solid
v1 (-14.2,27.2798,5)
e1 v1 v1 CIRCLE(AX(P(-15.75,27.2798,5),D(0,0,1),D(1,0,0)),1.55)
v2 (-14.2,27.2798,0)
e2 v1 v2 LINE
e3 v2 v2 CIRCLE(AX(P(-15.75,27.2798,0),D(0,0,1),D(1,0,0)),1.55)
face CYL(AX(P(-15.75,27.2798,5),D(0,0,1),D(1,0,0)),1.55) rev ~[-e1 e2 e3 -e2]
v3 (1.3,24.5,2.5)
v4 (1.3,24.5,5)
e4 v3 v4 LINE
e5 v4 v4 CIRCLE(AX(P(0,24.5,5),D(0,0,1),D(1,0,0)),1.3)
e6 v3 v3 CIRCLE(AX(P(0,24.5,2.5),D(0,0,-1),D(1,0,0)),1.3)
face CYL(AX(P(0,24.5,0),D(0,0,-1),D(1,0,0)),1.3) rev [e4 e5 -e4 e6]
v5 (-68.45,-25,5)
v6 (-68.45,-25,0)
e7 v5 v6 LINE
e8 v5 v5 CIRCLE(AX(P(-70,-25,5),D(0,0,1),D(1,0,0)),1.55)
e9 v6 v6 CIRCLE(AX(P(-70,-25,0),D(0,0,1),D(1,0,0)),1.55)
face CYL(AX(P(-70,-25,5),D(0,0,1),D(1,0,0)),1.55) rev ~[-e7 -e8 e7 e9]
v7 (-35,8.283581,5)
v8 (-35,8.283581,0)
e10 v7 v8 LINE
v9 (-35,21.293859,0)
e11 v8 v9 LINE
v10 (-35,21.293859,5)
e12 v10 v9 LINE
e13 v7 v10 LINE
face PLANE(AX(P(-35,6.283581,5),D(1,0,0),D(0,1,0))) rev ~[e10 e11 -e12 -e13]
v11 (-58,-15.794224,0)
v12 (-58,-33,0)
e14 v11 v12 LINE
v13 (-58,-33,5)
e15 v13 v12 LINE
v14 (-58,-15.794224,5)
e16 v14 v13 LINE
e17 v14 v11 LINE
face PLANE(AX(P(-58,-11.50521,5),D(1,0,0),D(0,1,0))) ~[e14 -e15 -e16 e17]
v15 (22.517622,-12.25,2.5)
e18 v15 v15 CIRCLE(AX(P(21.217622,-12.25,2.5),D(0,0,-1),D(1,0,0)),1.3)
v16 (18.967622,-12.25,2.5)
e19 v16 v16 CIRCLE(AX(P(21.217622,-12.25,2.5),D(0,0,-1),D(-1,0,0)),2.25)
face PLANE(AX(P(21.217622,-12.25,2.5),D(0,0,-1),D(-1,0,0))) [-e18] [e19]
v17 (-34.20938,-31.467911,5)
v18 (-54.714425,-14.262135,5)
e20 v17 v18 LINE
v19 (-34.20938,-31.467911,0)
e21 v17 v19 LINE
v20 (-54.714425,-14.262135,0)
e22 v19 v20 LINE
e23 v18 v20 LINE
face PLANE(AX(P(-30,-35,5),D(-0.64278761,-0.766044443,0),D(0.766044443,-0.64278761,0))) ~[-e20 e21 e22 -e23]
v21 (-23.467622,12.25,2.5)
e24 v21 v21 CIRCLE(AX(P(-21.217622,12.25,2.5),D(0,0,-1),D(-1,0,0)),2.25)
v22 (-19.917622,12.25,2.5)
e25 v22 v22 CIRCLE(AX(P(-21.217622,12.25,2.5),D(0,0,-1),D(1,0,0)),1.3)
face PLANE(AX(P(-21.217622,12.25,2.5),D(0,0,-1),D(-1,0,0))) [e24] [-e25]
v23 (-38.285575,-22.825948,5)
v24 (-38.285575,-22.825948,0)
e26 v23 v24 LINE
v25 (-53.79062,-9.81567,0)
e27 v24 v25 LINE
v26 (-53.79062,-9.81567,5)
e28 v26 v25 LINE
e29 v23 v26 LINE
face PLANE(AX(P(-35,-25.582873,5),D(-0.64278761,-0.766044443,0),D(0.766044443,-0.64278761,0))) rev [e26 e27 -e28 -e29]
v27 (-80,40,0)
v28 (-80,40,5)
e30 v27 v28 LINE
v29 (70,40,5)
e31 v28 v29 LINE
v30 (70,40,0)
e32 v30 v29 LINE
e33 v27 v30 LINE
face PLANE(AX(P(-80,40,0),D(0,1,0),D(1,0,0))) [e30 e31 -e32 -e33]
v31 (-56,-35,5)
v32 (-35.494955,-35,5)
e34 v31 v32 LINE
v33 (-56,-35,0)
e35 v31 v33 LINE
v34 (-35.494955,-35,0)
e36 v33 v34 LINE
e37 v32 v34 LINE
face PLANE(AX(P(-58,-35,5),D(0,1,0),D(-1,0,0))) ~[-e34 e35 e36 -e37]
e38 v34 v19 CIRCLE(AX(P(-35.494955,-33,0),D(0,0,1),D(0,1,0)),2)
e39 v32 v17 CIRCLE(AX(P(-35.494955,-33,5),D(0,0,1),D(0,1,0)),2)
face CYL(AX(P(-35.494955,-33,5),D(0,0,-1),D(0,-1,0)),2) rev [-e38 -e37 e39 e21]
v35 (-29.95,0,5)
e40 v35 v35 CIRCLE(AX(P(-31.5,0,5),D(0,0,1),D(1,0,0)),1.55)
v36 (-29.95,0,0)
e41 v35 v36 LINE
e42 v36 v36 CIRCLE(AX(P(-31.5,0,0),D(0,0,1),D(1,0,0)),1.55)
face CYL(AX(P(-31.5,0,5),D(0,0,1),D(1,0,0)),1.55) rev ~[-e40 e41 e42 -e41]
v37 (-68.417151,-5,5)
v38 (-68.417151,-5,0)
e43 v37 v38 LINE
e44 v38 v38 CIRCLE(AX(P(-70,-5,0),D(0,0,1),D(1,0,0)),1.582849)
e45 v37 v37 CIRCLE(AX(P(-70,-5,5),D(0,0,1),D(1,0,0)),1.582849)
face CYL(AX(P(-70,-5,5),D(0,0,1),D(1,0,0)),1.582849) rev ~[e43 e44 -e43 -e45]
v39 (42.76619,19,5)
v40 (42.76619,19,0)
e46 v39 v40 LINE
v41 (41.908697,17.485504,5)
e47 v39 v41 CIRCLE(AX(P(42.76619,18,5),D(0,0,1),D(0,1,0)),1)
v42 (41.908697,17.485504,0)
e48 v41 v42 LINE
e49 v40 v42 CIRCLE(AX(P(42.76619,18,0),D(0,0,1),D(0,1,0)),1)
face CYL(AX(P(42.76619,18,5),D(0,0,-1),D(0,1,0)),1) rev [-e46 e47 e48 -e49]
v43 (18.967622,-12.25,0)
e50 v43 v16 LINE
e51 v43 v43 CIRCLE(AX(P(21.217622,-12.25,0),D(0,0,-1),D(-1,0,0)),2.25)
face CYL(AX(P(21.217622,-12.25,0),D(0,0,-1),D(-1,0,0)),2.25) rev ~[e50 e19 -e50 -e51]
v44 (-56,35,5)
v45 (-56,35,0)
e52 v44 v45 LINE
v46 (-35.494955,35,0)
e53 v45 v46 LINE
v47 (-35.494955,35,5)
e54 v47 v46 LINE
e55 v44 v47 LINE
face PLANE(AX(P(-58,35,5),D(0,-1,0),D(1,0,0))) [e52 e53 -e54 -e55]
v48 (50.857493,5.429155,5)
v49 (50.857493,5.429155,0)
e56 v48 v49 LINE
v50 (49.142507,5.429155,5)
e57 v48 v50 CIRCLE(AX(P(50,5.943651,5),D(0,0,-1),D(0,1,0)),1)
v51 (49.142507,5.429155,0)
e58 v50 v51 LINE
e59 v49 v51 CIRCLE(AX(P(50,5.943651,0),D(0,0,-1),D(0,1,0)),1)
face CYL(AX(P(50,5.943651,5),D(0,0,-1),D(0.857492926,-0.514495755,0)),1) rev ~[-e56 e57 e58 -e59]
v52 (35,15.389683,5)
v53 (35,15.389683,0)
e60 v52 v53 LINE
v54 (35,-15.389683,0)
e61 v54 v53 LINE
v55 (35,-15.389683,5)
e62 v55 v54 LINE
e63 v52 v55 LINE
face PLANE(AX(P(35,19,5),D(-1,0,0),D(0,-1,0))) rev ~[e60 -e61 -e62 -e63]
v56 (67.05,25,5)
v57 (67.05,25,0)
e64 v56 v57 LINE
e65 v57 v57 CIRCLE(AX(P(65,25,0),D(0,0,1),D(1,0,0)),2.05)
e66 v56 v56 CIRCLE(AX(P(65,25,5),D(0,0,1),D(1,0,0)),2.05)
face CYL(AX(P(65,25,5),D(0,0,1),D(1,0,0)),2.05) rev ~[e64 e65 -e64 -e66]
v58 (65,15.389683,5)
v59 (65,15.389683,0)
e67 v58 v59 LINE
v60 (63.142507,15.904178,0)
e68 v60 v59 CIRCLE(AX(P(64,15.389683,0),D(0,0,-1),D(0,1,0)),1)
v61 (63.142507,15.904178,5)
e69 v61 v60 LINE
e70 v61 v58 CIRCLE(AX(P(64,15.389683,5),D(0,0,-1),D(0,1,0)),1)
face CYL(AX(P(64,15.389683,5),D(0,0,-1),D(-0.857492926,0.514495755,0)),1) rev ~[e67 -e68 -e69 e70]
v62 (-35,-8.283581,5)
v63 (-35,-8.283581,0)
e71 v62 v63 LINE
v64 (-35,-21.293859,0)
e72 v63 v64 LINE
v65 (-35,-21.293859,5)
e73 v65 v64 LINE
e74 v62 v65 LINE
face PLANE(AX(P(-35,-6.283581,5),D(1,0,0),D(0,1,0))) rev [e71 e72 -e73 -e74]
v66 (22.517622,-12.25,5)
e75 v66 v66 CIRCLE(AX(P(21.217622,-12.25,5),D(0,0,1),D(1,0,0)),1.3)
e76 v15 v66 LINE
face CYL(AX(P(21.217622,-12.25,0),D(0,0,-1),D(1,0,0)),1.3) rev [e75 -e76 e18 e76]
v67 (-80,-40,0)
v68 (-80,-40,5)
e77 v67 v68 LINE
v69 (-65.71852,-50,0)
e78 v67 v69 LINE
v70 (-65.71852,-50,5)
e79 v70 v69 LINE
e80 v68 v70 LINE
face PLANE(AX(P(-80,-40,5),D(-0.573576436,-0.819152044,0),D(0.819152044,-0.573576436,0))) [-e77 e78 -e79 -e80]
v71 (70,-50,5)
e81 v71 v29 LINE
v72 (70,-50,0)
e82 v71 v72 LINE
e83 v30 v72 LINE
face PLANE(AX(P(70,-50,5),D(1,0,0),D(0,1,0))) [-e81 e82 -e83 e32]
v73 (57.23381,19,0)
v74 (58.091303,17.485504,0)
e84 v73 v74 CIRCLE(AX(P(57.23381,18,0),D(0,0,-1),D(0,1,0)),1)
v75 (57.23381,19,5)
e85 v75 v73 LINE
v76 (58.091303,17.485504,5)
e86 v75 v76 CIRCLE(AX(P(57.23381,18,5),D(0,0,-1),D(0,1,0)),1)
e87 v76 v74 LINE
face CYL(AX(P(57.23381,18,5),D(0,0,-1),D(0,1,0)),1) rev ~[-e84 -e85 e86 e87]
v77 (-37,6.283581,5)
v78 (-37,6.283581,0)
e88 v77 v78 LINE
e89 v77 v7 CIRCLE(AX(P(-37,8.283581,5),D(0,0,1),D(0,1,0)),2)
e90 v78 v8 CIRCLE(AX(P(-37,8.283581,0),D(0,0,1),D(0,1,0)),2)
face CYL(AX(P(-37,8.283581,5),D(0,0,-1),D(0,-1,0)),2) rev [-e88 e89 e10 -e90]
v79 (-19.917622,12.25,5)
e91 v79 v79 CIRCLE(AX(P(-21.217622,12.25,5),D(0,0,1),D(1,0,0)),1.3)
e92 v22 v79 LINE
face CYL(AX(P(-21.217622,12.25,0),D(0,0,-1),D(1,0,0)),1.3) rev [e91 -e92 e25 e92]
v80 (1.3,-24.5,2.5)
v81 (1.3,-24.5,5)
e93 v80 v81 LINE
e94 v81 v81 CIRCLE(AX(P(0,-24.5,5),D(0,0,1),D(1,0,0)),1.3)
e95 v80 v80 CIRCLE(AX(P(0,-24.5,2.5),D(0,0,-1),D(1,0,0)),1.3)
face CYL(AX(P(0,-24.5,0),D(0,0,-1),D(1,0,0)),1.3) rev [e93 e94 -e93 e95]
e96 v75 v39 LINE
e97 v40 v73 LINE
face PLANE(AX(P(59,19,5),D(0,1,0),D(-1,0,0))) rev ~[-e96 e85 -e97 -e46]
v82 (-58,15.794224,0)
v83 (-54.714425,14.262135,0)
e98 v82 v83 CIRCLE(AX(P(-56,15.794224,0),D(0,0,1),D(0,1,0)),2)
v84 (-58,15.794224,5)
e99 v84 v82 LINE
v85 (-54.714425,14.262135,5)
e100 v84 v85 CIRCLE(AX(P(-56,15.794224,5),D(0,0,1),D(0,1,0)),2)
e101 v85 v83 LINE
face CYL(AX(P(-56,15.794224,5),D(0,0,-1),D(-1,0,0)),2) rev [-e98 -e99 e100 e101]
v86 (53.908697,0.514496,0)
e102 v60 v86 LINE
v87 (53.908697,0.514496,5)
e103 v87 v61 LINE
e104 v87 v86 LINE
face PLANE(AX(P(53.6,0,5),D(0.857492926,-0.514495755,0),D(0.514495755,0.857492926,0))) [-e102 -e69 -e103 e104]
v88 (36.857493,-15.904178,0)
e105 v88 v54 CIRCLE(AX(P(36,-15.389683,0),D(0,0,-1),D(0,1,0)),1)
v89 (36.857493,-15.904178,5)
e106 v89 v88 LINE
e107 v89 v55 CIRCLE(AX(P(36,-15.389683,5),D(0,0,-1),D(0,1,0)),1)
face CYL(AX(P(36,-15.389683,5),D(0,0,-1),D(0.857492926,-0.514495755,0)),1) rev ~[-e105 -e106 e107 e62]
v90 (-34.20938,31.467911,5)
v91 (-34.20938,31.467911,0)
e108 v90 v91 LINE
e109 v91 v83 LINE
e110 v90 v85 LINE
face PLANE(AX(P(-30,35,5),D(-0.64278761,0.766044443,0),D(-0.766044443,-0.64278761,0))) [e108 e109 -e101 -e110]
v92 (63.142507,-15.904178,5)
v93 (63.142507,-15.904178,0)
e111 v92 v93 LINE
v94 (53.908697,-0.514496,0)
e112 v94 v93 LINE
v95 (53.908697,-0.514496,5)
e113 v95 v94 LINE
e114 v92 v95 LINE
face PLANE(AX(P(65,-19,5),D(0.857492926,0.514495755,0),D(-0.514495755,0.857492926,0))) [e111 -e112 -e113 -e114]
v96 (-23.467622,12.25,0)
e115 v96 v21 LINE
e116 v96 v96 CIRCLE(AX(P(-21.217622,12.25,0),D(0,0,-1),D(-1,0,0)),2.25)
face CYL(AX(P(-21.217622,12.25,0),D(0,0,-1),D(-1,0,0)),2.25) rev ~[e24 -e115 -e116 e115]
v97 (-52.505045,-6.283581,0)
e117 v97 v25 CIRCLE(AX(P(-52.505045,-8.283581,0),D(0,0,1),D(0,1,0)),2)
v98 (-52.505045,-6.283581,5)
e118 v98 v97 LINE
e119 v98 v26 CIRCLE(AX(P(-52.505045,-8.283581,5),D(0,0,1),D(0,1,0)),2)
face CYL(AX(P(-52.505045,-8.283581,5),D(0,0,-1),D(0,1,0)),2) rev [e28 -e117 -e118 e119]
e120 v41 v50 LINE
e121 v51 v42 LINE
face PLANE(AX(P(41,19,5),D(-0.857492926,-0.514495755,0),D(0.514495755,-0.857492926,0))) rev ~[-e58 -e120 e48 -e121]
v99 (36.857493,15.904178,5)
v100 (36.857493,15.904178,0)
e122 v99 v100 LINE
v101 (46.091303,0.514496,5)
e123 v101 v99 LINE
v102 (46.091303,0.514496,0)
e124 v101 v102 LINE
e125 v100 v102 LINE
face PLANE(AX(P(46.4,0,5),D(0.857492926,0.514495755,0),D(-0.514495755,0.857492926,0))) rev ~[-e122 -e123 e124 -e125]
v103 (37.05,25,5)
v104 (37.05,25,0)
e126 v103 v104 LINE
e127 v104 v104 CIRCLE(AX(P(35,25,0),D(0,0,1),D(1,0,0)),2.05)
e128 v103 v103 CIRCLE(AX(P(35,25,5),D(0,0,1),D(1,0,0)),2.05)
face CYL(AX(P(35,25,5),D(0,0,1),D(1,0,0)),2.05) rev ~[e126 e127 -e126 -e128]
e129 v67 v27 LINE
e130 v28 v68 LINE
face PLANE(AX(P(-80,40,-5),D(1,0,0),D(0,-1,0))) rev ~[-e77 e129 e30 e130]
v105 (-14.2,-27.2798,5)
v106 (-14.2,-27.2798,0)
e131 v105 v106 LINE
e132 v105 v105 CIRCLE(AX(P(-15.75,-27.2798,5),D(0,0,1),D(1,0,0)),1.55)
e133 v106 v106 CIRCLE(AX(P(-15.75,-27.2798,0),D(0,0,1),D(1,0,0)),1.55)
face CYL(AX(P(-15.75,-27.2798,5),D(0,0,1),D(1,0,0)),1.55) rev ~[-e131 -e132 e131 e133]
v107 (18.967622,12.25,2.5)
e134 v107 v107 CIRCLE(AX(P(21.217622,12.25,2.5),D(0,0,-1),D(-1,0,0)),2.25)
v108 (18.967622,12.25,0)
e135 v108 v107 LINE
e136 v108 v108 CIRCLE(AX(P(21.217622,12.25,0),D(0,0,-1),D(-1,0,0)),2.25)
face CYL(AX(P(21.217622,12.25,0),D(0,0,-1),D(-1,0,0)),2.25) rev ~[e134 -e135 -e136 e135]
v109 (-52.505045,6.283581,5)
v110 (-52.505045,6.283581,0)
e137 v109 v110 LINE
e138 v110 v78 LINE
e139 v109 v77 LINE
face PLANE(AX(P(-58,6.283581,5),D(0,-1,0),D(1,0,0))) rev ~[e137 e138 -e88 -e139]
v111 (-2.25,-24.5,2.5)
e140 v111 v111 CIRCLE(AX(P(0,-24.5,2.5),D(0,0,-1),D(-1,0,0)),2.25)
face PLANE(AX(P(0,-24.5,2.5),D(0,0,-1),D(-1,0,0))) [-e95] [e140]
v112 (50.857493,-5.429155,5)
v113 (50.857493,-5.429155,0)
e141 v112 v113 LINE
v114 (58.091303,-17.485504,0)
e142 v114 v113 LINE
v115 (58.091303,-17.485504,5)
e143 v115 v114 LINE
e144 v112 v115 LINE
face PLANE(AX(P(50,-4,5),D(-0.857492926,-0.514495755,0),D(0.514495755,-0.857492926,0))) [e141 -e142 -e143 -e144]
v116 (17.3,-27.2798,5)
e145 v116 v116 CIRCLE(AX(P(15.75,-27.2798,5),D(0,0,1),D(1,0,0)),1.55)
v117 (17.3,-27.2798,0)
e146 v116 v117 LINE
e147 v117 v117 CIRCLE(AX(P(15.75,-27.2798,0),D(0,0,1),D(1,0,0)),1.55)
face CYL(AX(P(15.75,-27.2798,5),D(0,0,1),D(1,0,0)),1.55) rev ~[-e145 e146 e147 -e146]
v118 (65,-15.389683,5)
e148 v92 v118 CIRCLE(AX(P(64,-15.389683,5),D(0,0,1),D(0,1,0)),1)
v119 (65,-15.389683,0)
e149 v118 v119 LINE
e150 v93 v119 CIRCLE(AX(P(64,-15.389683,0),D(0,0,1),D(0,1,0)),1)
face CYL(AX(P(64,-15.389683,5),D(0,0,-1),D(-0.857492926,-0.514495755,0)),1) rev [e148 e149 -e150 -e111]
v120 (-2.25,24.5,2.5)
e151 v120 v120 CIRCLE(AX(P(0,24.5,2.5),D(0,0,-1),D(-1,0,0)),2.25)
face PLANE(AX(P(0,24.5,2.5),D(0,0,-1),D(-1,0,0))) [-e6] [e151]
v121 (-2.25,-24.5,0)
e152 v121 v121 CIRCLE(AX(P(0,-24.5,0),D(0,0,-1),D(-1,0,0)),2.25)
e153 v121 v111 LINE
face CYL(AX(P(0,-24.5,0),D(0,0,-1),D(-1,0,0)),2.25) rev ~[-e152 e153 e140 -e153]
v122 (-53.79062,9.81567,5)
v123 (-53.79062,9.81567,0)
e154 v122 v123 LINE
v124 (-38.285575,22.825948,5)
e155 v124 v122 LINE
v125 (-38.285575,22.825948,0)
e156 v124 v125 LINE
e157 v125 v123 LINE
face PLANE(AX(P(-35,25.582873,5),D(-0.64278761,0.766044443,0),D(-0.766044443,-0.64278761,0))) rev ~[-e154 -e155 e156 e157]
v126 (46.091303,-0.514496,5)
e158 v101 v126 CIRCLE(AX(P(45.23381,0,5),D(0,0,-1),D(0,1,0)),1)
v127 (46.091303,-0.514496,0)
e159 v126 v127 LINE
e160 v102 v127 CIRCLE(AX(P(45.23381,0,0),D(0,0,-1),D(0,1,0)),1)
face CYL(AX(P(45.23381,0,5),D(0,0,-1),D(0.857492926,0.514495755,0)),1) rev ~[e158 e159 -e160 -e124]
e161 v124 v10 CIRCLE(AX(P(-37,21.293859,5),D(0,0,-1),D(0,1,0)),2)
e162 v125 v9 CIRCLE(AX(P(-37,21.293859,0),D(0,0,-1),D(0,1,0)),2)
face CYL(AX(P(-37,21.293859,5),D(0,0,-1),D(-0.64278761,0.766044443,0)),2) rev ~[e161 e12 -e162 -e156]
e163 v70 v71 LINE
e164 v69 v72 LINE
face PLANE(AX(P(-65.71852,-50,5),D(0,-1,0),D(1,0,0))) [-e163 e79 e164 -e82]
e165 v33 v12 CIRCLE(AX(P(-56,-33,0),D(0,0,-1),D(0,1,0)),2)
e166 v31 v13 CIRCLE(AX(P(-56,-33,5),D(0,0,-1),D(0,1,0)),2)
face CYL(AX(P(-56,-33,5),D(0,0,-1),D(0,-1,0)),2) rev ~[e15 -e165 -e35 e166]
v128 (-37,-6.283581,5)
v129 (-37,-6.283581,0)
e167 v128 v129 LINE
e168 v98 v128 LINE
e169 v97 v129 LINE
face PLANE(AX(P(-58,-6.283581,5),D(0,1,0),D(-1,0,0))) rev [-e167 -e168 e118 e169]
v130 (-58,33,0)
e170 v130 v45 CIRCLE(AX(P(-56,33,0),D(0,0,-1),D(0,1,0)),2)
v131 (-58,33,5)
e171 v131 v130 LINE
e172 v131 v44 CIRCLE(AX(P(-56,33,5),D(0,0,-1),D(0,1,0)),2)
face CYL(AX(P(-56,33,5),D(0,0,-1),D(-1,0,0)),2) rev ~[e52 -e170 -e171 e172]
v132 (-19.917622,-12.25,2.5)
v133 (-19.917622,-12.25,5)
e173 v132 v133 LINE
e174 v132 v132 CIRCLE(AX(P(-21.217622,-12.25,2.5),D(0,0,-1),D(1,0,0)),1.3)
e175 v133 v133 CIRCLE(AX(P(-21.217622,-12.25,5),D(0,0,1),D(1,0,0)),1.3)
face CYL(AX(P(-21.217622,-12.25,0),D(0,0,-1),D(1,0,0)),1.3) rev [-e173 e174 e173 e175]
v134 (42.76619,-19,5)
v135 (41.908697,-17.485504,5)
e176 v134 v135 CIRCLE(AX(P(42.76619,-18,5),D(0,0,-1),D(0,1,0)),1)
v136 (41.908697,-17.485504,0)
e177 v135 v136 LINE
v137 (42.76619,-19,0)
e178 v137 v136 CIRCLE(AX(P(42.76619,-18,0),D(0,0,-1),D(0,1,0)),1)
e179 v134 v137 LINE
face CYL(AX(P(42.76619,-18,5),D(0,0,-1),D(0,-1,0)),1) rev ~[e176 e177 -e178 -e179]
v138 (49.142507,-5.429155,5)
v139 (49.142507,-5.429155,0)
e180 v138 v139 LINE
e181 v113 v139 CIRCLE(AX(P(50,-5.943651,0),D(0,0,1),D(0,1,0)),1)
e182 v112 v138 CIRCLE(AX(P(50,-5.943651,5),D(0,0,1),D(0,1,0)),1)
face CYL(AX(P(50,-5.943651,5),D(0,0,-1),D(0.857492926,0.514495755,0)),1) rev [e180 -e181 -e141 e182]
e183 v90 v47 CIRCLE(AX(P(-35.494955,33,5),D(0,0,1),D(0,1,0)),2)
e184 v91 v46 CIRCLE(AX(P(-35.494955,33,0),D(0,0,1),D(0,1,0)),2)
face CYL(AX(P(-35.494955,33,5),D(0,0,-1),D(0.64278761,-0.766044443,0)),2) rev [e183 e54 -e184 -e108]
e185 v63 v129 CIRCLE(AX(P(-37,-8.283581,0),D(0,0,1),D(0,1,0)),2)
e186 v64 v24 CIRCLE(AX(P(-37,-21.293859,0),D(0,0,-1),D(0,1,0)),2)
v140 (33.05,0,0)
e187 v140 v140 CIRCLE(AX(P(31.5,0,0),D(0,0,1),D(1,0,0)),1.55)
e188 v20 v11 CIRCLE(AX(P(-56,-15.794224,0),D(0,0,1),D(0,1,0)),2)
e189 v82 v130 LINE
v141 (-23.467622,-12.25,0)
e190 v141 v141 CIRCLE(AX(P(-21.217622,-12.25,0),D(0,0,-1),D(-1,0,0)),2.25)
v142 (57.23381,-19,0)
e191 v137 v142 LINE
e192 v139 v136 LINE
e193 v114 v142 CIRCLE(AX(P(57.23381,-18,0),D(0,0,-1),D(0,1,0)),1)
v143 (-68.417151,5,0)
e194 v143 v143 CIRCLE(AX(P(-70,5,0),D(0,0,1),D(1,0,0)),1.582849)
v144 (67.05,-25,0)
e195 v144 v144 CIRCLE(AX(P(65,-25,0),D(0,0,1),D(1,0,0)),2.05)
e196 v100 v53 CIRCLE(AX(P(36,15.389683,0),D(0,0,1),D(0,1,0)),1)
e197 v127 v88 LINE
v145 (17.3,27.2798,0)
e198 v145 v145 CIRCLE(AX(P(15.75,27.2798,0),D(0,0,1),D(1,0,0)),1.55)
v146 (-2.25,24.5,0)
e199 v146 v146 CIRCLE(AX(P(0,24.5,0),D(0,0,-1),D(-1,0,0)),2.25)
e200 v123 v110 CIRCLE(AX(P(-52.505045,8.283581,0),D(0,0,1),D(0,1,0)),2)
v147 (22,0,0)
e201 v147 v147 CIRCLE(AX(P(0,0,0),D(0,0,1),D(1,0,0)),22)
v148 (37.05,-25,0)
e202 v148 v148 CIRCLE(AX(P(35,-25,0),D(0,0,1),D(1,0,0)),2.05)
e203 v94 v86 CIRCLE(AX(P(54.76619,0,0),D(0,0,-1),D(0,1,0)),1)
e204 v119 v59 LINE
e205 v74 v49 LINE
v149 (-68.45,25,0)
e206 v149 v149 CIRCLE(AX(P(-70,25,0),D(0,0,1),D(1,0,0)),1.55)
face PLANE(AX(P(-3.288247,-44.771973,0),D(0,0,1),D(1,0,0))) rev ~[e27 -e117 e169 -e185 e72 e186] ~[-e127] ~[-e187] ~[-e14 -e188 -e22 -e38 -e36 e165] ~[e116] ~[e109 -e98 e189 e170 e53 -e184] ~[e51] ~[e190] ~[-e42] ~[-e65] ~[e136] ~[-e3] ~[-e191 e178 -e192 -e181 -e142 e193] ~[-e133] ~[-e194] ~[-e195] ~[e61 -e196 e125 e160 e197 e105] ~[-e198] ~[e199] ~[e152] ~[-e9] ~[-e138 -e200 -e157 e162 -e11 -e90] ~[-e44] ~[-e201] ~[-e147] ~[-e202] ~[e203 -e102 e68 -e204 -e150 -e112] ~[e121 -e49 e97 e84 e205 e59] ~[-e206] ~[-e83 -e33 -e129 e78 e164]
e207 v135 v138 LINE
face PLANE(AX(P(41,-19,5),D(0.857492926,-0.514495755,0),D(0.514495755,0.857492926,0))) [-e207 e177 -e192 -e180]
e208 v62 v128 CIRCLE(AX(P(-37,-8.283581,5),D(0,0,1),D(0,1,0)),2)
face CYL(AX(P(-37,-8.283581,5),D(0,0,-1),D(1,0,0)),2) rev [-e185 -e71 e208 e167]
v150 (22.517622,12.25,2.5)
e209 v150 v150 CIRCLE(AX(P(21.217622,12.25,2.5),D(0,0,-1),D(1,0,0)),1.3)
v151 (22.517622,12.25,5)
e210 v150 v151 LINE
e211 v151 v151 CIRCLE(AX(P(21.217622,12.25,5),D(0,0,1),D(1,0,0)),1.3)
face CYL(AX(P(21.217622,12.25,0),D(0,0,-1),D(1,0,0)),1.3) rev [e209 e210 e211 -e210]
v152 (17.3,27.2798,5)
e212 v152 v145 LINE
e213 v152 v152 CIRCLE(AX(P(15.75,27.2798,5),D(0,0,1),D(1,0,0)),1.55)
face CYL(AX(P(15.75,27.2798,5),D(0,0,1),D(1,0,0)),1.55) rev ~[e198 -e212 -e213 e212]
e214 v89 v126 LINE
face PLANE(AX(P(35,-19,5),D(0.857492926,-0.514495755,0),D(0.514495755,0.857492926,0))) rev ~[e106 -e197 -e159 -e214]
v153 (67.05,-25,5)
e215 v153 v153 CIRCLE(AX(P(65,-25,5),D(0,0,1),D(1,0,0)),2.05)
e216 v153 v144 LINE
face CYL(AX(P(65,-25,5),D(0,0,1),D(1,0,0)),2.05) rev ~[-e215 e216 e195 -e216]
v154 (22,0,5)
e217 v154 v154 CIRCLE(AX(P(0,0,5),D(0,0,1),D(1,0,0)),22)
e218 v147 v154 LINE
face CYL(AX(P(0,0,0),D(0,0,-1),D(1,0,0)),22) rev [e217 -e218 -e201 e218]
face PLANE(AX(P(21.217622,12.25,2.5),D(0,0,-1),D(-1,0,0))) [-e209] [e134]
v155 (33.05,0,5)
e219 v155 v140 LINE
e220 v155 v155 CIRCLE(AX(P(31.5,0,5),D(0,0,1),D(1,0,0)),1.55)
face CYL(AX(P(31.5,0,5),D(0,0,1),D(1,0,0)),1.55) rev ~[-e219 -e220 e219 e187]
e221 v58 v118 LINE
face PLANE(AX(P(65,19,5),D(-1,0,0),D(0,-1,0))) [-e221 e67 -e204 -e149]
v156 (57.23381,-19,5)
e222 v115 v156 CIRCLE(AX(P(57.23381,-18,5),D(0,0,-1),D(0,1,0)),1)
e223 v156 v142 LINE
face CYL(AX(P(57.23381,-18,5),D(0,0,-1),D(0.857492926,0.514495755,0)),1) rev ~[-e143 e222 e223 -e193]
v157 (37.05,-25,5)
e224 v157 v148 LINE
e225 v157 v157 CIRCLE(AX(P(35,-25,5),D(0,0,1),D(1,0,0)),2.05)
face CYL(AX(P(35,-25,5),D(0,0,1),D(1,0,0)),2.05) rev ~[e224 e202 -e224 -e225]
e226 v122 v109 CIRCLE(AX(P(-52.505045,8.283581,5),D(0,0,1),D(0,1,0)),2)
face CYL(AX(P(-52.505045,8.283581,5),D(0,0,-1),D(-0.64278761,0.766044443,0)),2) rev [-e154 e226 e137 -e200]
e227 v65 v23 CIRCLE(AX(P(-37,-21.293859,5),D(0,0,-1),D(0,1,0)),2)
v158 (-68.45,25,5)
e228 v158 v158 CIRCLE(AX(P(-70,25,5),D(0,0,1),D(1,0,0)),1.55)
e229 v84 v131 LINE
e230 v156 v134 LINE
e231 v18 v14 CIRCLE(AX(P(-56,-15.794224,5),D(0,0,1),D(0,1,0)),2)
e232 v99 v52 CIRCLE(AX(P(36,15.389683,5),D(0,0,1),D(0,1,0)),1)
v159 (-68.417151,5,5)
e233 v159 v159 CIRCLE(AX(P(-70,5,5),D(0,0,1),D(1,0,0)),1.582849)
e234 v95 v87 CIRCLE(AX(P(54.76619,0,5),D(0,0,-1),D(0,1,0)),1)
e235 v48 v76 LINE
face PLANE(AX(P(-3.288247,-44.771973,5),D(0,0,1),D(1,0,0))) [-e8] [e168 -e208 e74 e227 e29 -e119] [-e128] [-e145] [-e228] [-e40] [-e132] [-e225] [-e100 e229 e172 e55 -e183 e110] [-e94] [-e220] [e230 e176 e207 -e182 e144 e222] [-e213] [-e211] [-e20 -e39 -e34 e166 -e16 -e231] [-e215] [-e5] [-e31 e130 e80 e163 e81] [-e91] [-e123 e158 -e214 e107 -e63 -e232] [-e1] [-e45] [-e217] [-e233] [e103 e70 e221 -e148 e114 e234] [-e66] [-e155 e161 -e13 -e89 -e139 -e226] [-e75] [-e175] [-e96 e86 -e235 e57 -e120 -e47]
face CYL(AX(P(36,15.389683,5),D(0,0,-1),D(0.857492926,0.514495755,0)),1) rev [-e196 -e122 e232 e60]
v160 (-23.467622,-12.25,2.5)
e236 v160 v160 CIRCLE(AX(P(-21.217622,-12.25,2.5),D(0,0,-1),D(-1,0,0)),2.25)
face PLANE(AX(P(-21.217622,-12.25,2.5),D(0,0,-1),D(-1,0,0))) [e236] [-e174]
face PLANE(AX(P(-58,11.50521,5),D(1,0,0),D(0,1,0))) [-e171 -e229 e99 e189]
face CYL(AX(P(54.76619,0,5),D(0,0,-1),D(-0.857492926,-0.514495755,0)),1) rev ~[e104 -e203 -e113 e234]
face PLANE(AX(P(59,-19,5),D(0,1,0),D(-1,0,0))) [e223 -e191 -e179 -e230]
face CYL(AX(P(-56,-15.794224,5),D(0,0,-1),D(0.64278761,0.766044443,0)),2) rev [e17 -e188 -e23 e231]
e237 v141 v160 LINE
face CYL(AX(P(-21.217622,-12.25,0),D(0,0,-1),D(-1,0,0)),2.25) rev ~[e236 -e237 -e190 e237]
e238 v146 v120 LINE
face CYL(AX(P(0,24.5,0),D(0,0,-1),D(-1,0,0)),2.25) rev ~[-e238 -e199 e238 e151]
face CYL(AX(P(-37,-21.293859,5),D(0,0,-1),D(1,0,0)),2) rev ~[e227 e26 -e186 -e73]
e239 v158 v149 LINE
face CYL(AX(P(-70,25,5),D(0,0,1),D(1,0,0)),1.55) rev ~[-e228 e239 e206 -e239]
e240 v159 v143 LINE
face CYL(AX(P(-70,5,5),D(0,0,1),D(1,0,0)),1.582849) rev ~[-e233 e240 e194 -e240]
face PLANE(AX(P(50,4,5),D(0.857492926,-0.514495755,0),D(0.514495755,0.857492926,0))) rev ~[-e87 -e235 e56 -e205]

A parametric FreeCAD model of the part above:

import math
import FreeCAD as App
import Part
import Sketcher
from FreeCAD import Vector
Q = App.Units.Quantity


def edges_at(feature, points):
    """Names of the edges that pass closest to the given points."""
    edges = feature.Shape.Edges
    near = lambda p: min(range(len(edges)), key=lambda i: edges[i].distToShape(Part.Vertex(*p))[0])
    return sorted({f"Edge{near(p) + 1}" for p in points})

doc = App.newDocument("Part")
params = doc.addObject("Spreadsheet::Sheet", "Params")
for row, (alias, value) in enumerate([
    ("sketch1_diameter", "44 mm"),
    ("sketch1_diameter2", "2.6 mm"),
    ("sketch1_width", "150 mm"),
    ("sketch1_height", "80 mm"),
    ("pad1_length", "5 mm"),
    ("sketch2_diameter", "3.1 mm"),
    ("pocket1_length", "12.5 mm"),
    ("sketch3_width", "28 mm"),
    ("sketch3_width2", "23 mm"),
    ("pocket2_length", "8 mm"),
    ("fillet_radius", "2 mm"),
    ("fillet2_radius", "2 mm"),
    ("sketch4_height", "80 mm"),
    ("pad2_length", "5 mm"),
    ("fillet3_radius", "5 mm"),
    ("sketch5_diameter", "3.1 mm"),
    ("pocket3_length", "25 mm"),
    ("sketch6_diameter", "4.1 mm"),
    ("pocket4_length", "10 mm"),
    ("sketch7_width", "18 mm"),
    ("sketch7_height", "38 mm"),
    ("pocket5_length", "10 mm"),
    ("fillet4_radius", "1 mm"),
    ("sketch8_width", "150 mm"),
    ("sketch8_height", "10 mm"),
    ("pad3_length", "5 mm"),
    ("sketch9_diameter", "4.5 mm"),
    ("pocket6_length", "2.5 mm"),
    ("sketch10_radius", "5 mm"),
    ("sketch10_height", "80 mm"),
    ("pocket7_length", "10 mm"),
], start=1):
    params.set(f"A{row}", alias)
    params.set(f"B{row}", "=" + value)
    params.setAlias(f"B{row}", alias)

body = doc.addObject("PartDesign::Body", "Body")

sketch1 = body.newObject("Sketcher::SketchObject", "Sketch")
sketch1.AttachmentSupport = (doc.getObject("XY_Plane"), [""])
sketch1.MapMode = "FlatFace"
sketch1.addGeometry([
    Part.LineSegment(Vector(-80, 40, 0), Vector(-80, -40, 0)),
    Part.LineSegment(Vector(-80, -40, 0), Vector(70, -40, 0)),
    Part.LineSegment(Vector(70, -40, 0), Vector(70, 40, 0)),
    Part.LineSegment(Vector(70, 40, 0), Vector(-80, 40, 0)),
    Part.Circle(Vector(-21.217622, -12.25, 0), Vector(0, 0, 1), 1.3),
    Part.Circle(Vector(0, -24.5, 0), Vector(0, 0, 1), 1.3),
    Part.Circle(Vector(21.217622, -12.25, 0), Vector(0, 0, 1), 1.3),
    Part.Circle(Vector(-21.217622, 12.25, 0), Vector(0, 0, 1), 1.3),
    Part.Circle(Vector(0, 0, 0), Vector(0, 0, 1), 22),
    Part.Circle(Vector(21.217622, 12.25, 0), Vector(0, 0, 1), 1.3),
    Part.Circle(Vector(0, 24.5, 0), Vector(0, 0, 1), 1.3),
], False)
sketch1.addConstraint([
    Sketcher.Constraint("Coincident", 0, 2, 1, 1),
    Sketcher.Constraint("Coincident", 1, 2, 2, 1),
    Sketcher.Constraint("Coincident", 2, 2, 3, 1),
    Sketcher.Constraint("Coincident", 3, 2, 0, 1),
    Sketcher.Constraint("Vertical", 0),
    Sketcher.Constraint("Horizontal", 1),
    Sketcher.Constraint("Vertical", 2),
    Sketcher.Constraint("Horizontal", 3),
    Sketcher.Constraint("Coincident", 8, 3, -1, 1),
    Sketcher.Constraint("Equal", 4, 5),
    Sketcher.Constraint("Equal", 5, 6),
    Sketcher.Constraint("Equal", 6, 7),
    Sketcher.Constraint("Equal", 7, 9),
    Sketcher.Constraint("Equal", 9, 10),
    Sketcher.Constraint("Symmetric", 6, 3, 7, 3, -1, 1),
    Sketcher.Constraint("Symmetric", 4, 3, 9, 3, -1, 1),
    Sketcher.Constraint("Symmetric", 5, 3, 10, 3, -1, 1),
    Sketcher.Constraint("Symmetric", 4, 3, 6, 3, -2),
    Sketcher.Constraint("PointOnObject", 5, 3, -2),
    Sketcher.Constraint("Diameter", 8, 44.0),
    Sketcher.Constraint("Diameter", 4, 2.6),
    Sketcher.Constraint("DistanceX", 1, 1, 1, 2, 150.0),
    Sketcher.Constraint("DistanceY", 0, 2, 0, 1, 80.0),
    Sketcher.Constraint("DistanceX", 0, 2, -1, 1, 80.0),
    Sketcher.Constraint("DistanceY", 0, 2, -1, 1, 40.0),
    Sketcher.Constraint("DistanceY", 5, 3, -1, 1, 24.5),
    Sketcher.Constraint("DistanceY", 4, 3, 7, 3, 24.5),
    Sketcher.Constraint("DistanceX", 4, 3, -1, 1, 21.217622),
])
sketch1.setExpression("Constraints[19]", "Params.sketch1_diameter")
sketch1.setExpression("Constraints[20]", "Params.sketch1_diameter2")
sketch1.setExpression("Constraints[21]", "Params.sketch1_width")
sketch1.setExpression("Constraints[22]", "Params.sketch1_height")
pad1 = body.newObject("PartDesign::Pad", "Pad")
pad1.Profile = sketch1
pad1.setExpression("Length", "Params.pad1_length")

sketch2 = body.newObject("Sketcher::SketchObject", "Sketch001")
sketch2.AttachmentSupport = (doc.getObject("XY_Plane"), [""])
sketch2.MapMode = "FlatFace"
sketch2.AttachmentOffset = App.Placement(Vector(0, 0, 5), App.Rotation())
sketch2.addGeometry([
    Part.Circle(Vector(-70, -25, 0), Vector(0, 0, 1), 1.55),
    Part.Circle(Vector(-70, -5, 0), Vector(0, 0, 1), 1.582849),
    Part.Circle(Vector(-70, 25, 0), Vector(0, 0, 1), 1.55),
    Part.Circle(Vector(-70, 5, 0), Vector(0, 0, 1), 1.582849),
], False)
sketch2.addConstraint([
    Sketcher.Constraint("Equal", 0, 2),
    Sketcher.Constraint("Equal", 1, 3),
    Sketcher.Constraint("Symmetric", 0, 3, 2, 3, -1),
    Sketcher.Constraint("Symmetric", 1, 3, 3, 3, -1),
    Sketcher.Constraint("Vertical", 0, 3, 1, 3),
    Sketcher.Constraint("Diameter", 0, 3.1),
    Sketcher.Constraint("DistanceX", 0, 3, -1, 1, 70.0),
    Sketcher.Constraint("DistanceY", 0, 3, -1, 1, 25.0),
    Sketcher.Constraint("DistanceY", 1, 3, -1, 1, 5.0),
    Sketcher.Constraint("Diameter", 1, 3.165699),
])
sketch2.setExpression("Constraints[5]", "Params.sketch2_diameter")
pocket1 = body.newObject("PartDesign::Pocket", "Pocket")
pocket1.Profile = sketch2
pocket1.setExpression("Length", "Params.pocket1_length")

sketch3 = body.newObject("Sketcher::SketchObject", "Sketch002")
sketch3.AttachmentSupport = (doc.getObject("XY_Plane"), [""])
sketch3.MapMode = "FlatFace"
sketch3.AttachmentOffset = App.Placement(Vector(0, 0, 5), App.Rotation())
sketch3.addGeometry([
    Part.LineSegment(Vector(-30, 35, 0), Vector(-58, 35, 0)),
    Part.LineSegment(Vector(-58, 35, 0), Vector(-58, 11.50521, 0)),
    Part.LineSegment(Vector(-58, 11.50521, 0), Vector(-30, 35, 0)),
    Part.LineSegment(Vector(-35, 25.582873, 0), Vector(-58, 6.283581, 0)),
    Part.LineSegment(Vector(-58, 6.283581, 0), Vector(-35, 6.283581, 0)),
    Part.LineSegment(Vector(-35, 6.283581, 0), Vector(-35, 25.582873, 0)),
], False)
sketch3.addConstraint([
    Sketcher.Constraint("Coincident", 0, 2, 1, 1),
    Sketcher.Constraint("Coincident", 1, 2, 2, 1),
    Sketcher.Constraint("Coincident", 2, 2, 0, 1),
    Sketcher.Constraint("Coincident", 3, 2, 4, 1),
    Sketcher.Constraint("Coincident", 4, 2, 5, 1),
    Sketcher.Constraint("Coincident", 5, 2, 3, 1),
    Sketcher.Constraint("Horizontal", 0),
    Sketcher.Constraint("Vertical", 1),
    Sketcher.Constraint("Horizontal", 4),
    Sketcher.Constraint("Vertical", 5),
    Sketcher.Constraint("Parallel", 2, 3),
    Sketcher.Constraint("Vertical", 1, 2, 3, 2),
    Sketcher.Constraint("DistanceX", 0, 2, 0, 1, 28.0),
    Sketcher.Constraint("DistanceX", 4, 1, 4, 2, 23.0),
    Sketcher.Constraint("Angle", 2, Q("40 deg")),
    Sketcher.Constraint("DistanceX", 0, 2, -1, 1, 58.0),
    Sketcher.Constraint("DistanceY", -1, 1, 0, 2, 35.0),
    Sketcher.Constraint("DistanceY", -1, 1, 3, 2, 6.283581),
])
sketch3.setExpression("Constraints[12]", "Params.sketch3_width")
sketch3.setExpression("Constraints[13]", "Params.sketch3_width2")
pocket2 = body.newObject("PartDesign::Pocket", "Pocket001")
pocket2.Profile = sketch3
pocket2.setExpression("Length", "Params.pocket2_length")
doc.recompute()

fillet = body.newObject("PartDesign::Fillet", "Fillet")
fillet.Base = (pocket2, edges_at(pocket2, [
    (-35, 6.284, 2.5),
    (-58, 6.284, 2.5),
    (-35, 25.583, 2.5),
    (-30, 35, 2.5),
    (-58, 11.505, 2.5),
    (-58, 35, 2.5),
]))
fillet.setExpression("Radius", "Params.fillet_radius")
doc.recompute()

mirrored = body.newObject("PartDesign::Mirrored", "Mirrored")
mirrored.Originals = [pocket2]
mirrored.MirrorPlane = (doc.getObject("XZ_Plane"), [""])
body.Tip = mirrored
doc.recompute()

fillet2 = body.newObject("PartDesign::Fillet", "Fillet001")
fillet2.Base = (mirrored, edges_at(mirrored, [
    (-35, -6.284, 2.5),
    (-58, -6.284, 2.5),
    (-35, -25.583, 2.5),
    (-30, -35, 2.5),
    (-58, -11.505, 2.5),
    (-58, -35, 2.5),
]))
fillet2.setExpression("Radius", "Params.fillet2_radius")

sketch4 = body.newObject("Sketcher::SketchObject", "Sketch003")
sketch4.AttachmentSupport = (doc.getObject("XY_Plane"), [""])
sketch4.MapMode = "FlatFace"
sketch4.AttachmentOffset = App.Placement(Vector(0, 0, 5), App.Rotation())
sketch4.addGeometry([
    Part.LineSegment(Vector(-127.053079, -7.053079, 0), Vector(-80, -40, 0)),
    Part.LineSegment(Vector(-80, -40, 0), Vector(-80, 40, 0)),
    Part.LineSegment(Vector(-80, 40, 0), Vector(-127.053079, -7.053079, 0)),
], False)
sketch4.addConstraint([
    Sketcher.Constraint("Coincident", 0, 2, 1, 1),
    Sketcher.Constraint("Coincident", 1, 2, 2, 1),
    Sketcher.Constraint("Coincident", 2, 2, 0, 1),
    Sketcher.Constraint("Vertical", 1),
    Sketcher.Constraint("DistanceY", 1, 1, 1, 2, 80.0),
    Sketcher.Constraint("Angle", 0, Q("-35 deg")),
    Sketcher.Constraint("Angle", 2, Q("-135 deg")),
    Sketcher.Constraint("DistanceX", 0, 2, -1, 1, 80.0),
    Sketcher.Constraint("DistanceY", 0, 2, -1, 1, 40.0),
])
sketch4.setExpression("Constraints[4]", "Params.sketch4_height")
pad2 = body.newObject("PartDesign::Pad", "Pad001")
pad2.Profile = sketch4
pad2.setExpression("Length", "Params.pad2_length")
pad2.Reversed = True
doc.recompute()

fillet3 = body.newObject("PartDesign::Fillet", "Fillet002")
fillet3.Base = (pad2, edges_at(pad2, [(-127.053, -7.053, 2.5)]))
fillet3.setExpression("Radius", "Params.fillet3_radius")

sketch5 = body.newObject("Sketcher::SketchObject", "Sketch004")
sketch5.AttachmentSupport = (doc.getObject("XY_Plane"), [""])
sketch5.MapMode = "FlatFace"
sketch5.AttachmentOffset = App.Placement(Vector(0, 0, 5), App.Rotation())
sketch5.addGeometry([
    Part.Circle(Vector(-15.75, 27.2798, 0), Vector(0, 0, 1), 1.55),
    Part.Circle(Vector(15.75, 27.2798, 0), Vector(0, 0, 1), 1.55),
    Part.Circle(Vector(31.5, 0, 0), Vector(0, 0, 1), 1.55),
    Part.Circle(Vector(15.75, -27.2798, 0), Vector(0, 0, 1), 1.55),
    Part.Circle(Vector(-15.75, -27.2798, 0), Vector(0, 0, 1), 1.55),
    Part.Circle(Vector(-31.5, 0, 0), Vector(0, 0, 1), 1.55),
], False)
sketch5.addConstraint([
    Sketcher.Constraint("Equal", 0, 1),
    Sketcher.Constraint("Equal", 1, 2),
    Sketcher.Constraint("Equal", 2, 3),
    Sketcher.Constraint("Equal", 3, 4),
    Sketcher.Constraint("Equal", 4, 5),
    Sketcher.Constraint("Symmetric", 0, 3, 3, 3, -1, 1),
    Sketcher.Constraint("Symmetric", 1, 3, 4, 3, -1, 1),
    Sketcher.Constraint("Symmetric", 2, 3, 5, 3, -1, 1),
    Sketcher.Constraint("Symmetric", 0, 3, 1, 3, -2),
    Sketcher.Constraint("PointOnObject", 2, 3, -1),
    Sketcher.Constraint("Diameter", 0, 3.1),
    Sketcher.Constraint("DistanceX", 5, 3, 2, 3, 63.0),
    Sketcher.Constraint("DistanceX", 0, 3, 1, 3, 31.5),
    Sketcher.Constraint("DistanceY", -1, 1, 0, 3, 27.2798),
])
sketch5.setExpression("Constraints[10]", "Params.sketch5_diameter")
pocket3 = body.newObject("PartDesign::Pocket", "Pocket002")
pocket3.Profile = sketch5
pocket3.setExpression("Length", "Params.pocket3_length")

sketch6 = body.newObject("Sketcher::SketchObject", "Sketch005")
sketch6.AttachmentSupport = (doc.getObject("XY_Plane"), [""])
sketch6.MapMode = "FlatFace"
sketch6.AttachmentOffset = App.Placement(Vector(0, 0, 5), App.Rotation())
sketch6.addGeometry([
    Part.Circle(Vector(35, 25, 0), Vector(0, 0, 1), 2.05),
    Part.Circle(Vector(65, 25, 0), Vector(0, 0, 1), 2.05),
    Part.Circle(Vector(65, -25, 0), Vector(0, 0, 1), 2.05),
    Part.Circle(Vector(35, -25, 0), Vector(0, 0, 1), 2.05),
], False)
sketch6.addConstraint([
    Sketcher.Constraint("Equal", 0, 1),
    Sketcher.Constraint("Equal", 1, 2),
    Sketcher.Constraint("Equal", 2, 3),
    Sketcher.Constraint("Symmetric", 1, 3, 2, 3, -1),
    Sketcher.Constraint("Symmetric", 0, 3, 3, 3, -1),
    Sketcher.Constraint("Horizontal", 0, 3, 1, 3),
    Sketcher.Constraint("Diameter", 0, 4.1),
    Sketcher.Constraint("DistanceX", -1, 1, 0, 3, 35.0),
    Sketcher.Constraint("DistanceY", -1, 1, 0, 3, 25.0),
    Sketcher.Constraint("DistanceX", -1, 1, 1, 3, 65.0),
])
sketch6.setExpression("Constraints[6]", "Params.sketch6_diameter")
pocket4 = body.newObject("PartDesign::Pocket", "Pocket003")
pocket4.Profile = sketch6
pocket4.setExpression("Length", "Params.pocket4_length")

sketch7 = body.newObject("Sketcher::SketchObject", "Sketch006")
sketch7.AttachmentSupport = (doc.getObject("XY_Plane"), [""])
sketch7.MapMode = "FlatFace"
sketch7.AttachmentOffset = App.Placement(Vector(0, 0, 5), App.Rotation())
sketch7.addGeometry([
    Part.LineSegment(Vector(35, 19, 0), Vector(35, -19, 0)),
    Part.LineSegment(Vector(35, -19, 0), Vector(46.4, 0, 0)),
    Part.LineSegment(Vector(46.4, 0, 0), Vector(35, 19, 0)),
    Part.LineSegment(Vector(53.6, 0, 0), Vector(65, -19, 0)),
    Part.LineSegment(Vector(65, -19, 0), Vector(65, 19, 0)),
    Part.LineSegment(Vector(65, 19, 0), Vector(53.6, 0, 0)),
    Part.LineSegment(Vector(41, 19, 0), Vector(50, 4, 0)),
    Part.LineSegment(Vector(50, 4, 0), Vector(59, 19, 0)),
    Part.LineSegment(Vector(59, 19, 0), Vector(41, 19, 0)),
    Part.LineSegment(Vector(59, -19, 0), Vector(50, -4, 0)),
    Part.LineSegment(Vector(50, -4, 0), Vector(41, -19, 0)),
    Part.LineSegment(Vector(41, -19, 0), Vector(59, -19, 0)),
], False)
sketch7.addConstraint([
    Sketcher.Constraint("Coincident", 0, 2, 1, 1),
    Sketcher.Constraint("Coincident", 1, 2, 2, 1),
    Sketcher.Constraint("Coincident", 2, 2, 0, 1),
    Sketcher.Constraint("Coincident", 3, 2, 4, 1),
    Sketcher.Constraint("Coincident", 4, 2, 5, 1),
    Sketcher.Constraint("Coincident", 5, 2, 3, 1),
    Sketcher.Constraint("Coincident", 6, 2, 7, 1),
    Sketcher.Constraint("Coincident", 7, 2, 8, 1),
    Sketcher.Constraint("Coincident", 8, 2, 6, 1),
    Sketcher.Constraint("Coincident", 9, 2, 10, 1),
    Sketcher.Constraint("Coincident", 10, 2, 11, 1),
    Sketcher.Constraint("Coincident", 11, 2, 9, 1),
    Sketcher.Constraint("Vertical", 0),
    Sketcher.Constraint("Vertical", 4),
    Sketcher.Constraint("Horizontal", 8),
    Sketcher.Constraint("Horizontal", 11),
    Sketcher.Constraint("Symmetric", 6, 2, 9, 2, -1),
    Sketcher.Constraint("Symmetric", 8, 2, 10, 2, -1),
    Sketcher.Constraint("PointOnObject", 1, 2, -1),
    Sketcher.Constraint("PointOnObject", 5, 2, -1),
    Sketcher.Constraint("Parallel", 2, 3),
    Sketcher.Constraint("Parallel", 1, 5),
    Sketcher.Constraint("Parallel", 3, 6),
    Sketcher.Constraint("Parallel", 5, 7),
    Sketcher.Constraint("Parallel", 6, 9),
    Sketcher.Constraint("Parallel", 7, 10),
    Sketcher.Constraint("Horizontal", 0, 2, 3, 2),
    Sketcher.Constraint("Horizontal", 4, 2, 7, 2),
    Sketcher.Constraint("DistanceX", 8, 2, 8, 1, 18.0),
    Sketcher.Constraint("DistanceY", 0, 2, 0, 1, 38.0),
    Sketcher.Constraint("DistanceX", -1, 1, 0, 2, 35.0),
    Sketcher.Constraint("DistanceX", -1, 1, 3, 2, 65.0),
    Sketcher.Constraint("DistanceX", -1, 1, 6, 2, 50.0),
    Sketcher.Constraint("DistanceY", -1, 1, 6, 2, 4.0),
])
sketch7.setExpression("Constraints[28]", "Params.sketch7_width")
sketch7.setExpression("Constraints[29]", "Params.sketch7_height")
pocket5 = body.newObject("PartDesign::Pocket", "Pocket004")
pocket5.Profile = sketch7
pocket5.setExpression("Length", "Params.pocket5_length")
doc.recompute()

fillet4 = body.newObject("PartDesign::Fillet", "Fillet003")
fillet4.Base = (pocket5, edges_at(pocket5, [
    (41, 19, 2.5),
    (59, 19, 2.5),
    (50, 4, 2.5),
    (65, 19, 2.5),
    (65, -19, 2.5),
    (53.6, 0, 2.5),
    (41, -19, 2.5),
    (50, -4, 2.5),
    (59, -19, 2.5),
    (35, 19, 2.5),
    (46.4, 0, 2.5),
    (35, -19, 2.5),
]))
fillet4.setExpression("Radius", "Params.fillet4_radius")

sketch8 = body.newObject("Sketcher::SketchObject", "Sketch007")
sketch8.AttachmentSupport = (doc.getObject("XY_Plane"), [""])
sketch8.MapMode = "FlatFace"
sketch8.AttachmentOffset = App.Placement(Vector(0, 0, 5), App.Rotation())
sketch8.addGeometry([
    Part.LineSegment(Vector(-80, -40, 0), Vector(-65.71852, -50, 0)),
    Part.LineSegment(Vector(-65.71852, -50, 0), Vector(70, -50, 0)),
    Part.LineSegment(Vector(70, -50, 0), Vector(70, -40, 0)),
    Part.LineSegment(Vector(70, -40, 0), Vector(-80, -40, 0)),
], False)
sketch8.addConstraint([
    Sketcher.Constraint("Coincident", 0, 2, 1, 1),
    Sketcher.Constraint("Coincident", 1, 2, 2, 1),
    Sketcher.Constraint("Coincident", 2, 2, 3, 1),
    Sketcher.Constraint("Coincident", 3, 2, 0, 1),
    Sketcher.Constraint("Horizontal", 1),
    Sketcher.Constraint("Vertical", 2),
    Sketcher.Constraint("Horizontal", 3),
    Sketcher.Constraint("DistanceX", 3, 2, 3, 1, 150.0),
    Sketcher.Constraint("DistanceY", 2, 1, 2, 2, 10.0),
    Sketcher.Constraint("Angle", 0, Q("-35 deg")),
    Sketcher.Constraint("DistanceY", 0, 2, -1, 1, 50.0),
    Sketcher.Constraint("DistanceX", -1, 1, 1, 2, 70.0),
])
sketch8.setExpression("Constraints[7]", "Params.sketch8_width")
sketch8.setExpression("Constraints[8]", "Params.sketch8_height")
pad3 = body.newObject("PartDesign::Pad", "Pad002")
pad3.Profile = sketch8
pad3.setExpression("Length", "Params.pad3_length")
pad3.Reversed = True

sketch9 = body.newObject("Sketcher::SketchObject", "Sketch008")
sketch9.AttachmentSupport = (doc.getObject("XY_Plane"), [""])
sketch9.MapMode = "FlatFace"
sketch9.addGeometry([
    Part.Circle(Vector(0, 24.5, 0), Vector(0, 0, 1), 2.25),
    Part.Circle(Vector(-21.217622, 12.25, 0), Vector(0, 0, 1), 2.25),
    Part.Circle(Vector(-21.217622, -12.25, 0), Vector(0, 0, 1), 2.25),
    Part.Circle(Vector(0, -24.5, 0), Vector(0, 0, 1), 2.25),
    Part.Circle(Vector(21.217622, -12.25, 0), Vector(0, 0, 1), 2.25),
    Part.Circle(Vector(21.217622, 12.25, 0), Vector(0, 0, 1), 2.25),
], False)
sketch9.addConstraint([
    Sketcher.Constraint("Equal", 0, 1),
    Sketcher.Constraint("Equal", 1, 2),
    Sketcher.Constraint("Equal", 2, 3),
    Sketcher.Constraint("Equal", 3, 4),
    Sketcher.Constraint("Equal", 4, 5),
    Sketcher.Constraint("Symmetric", 0, 3, 3, 3, -1, 1),
    Sketcher.Constraint("Symmetric", 1, 3, 4, 3, -1, 1),
    Sketcher.Constraint("Symmetric", 2, 3, 5, 3, -1, 1),
    Sketcher.Constraint("Symmetric", 2, 3, 4, 3, -2),
    Sketcher.Constraint("PointOnObject", 0, 3, -2),
    Sketcher.Constraint("Diameter", 0, 4.5),
    Sketcher.Constraint("DistanceY", 3, 3, 0, 3, 49.0),
    Sketcher.Constraint("DistanceY", 2, 3, 1, 3, 24.5),
    Sketcher.Constraint("DistanceX", 1, 3, -1, 1, 21.217622),
])
sketch9.setExpression("Constraints[10]", "Params.sketch9_diameter")
pocket6 = body.newObject("PartDesign::Pocket", "Pocket005")
pocket6.Profile = sketch9
pocket6.setExpression("Length", "Params.pocket6_length")
pocket6.Reversed = True

sketch10 = body.newObject("Sketcher::SketchObject", "Sketch009")
sketch10.AttachmentSupport = (doc.getObject("XY_Plane"), [""])
sketch10.MapMode = "FlatFace"
sketch10.AttachmentOffset = App.Placement(Vector(0, 0, -5), App.Rotation())
sketch10.addGeometry([
    Part.LineSegment(Vector(-80, 40, 0), Vector(-122.839594, -2.839594, 0)),
    Part.ArcOfCircle(Part.Circle(Vector(-119.30406, -6.375128, 0), Vector(0, 0, 1), 5), math.radians(135), math.radians(235)),
    Part.LineSegment(Vector(-122.171942, -10.470888, 0), Vector(-80, -40, 0)),
    Part.LineSegment(Vector(-80, -40, 0), Vector(-80, 40, 0)),
], False)
sketch10.addConstraint([
    Sketcher.Constraint("Tangent", 0, 2, 1, 1),
    Sketcher.Constraint("Tangent", 1, 2, 2, 1),
    Sketcher.Constraint("Coincident", 2, 2, 3, 1),
    Sketcher.Constraint("Coincident", 3, 2, 0, 1),
    Sketcher.Constraint("Vertical", 3),
    Sketcher.Constraint("Radius", 1, 5.0),
    Sketcher.Constraint("DistanceY", 3, 1, 3, 2, 80.0),
    Sketcher.Constraint("Angle", 0, Q("-135 deg")),
    Sketcher.Constraint("Angle", 2, Q("-35 deg")),
    Sketcher.Constraint("DistanceX", 2, 2, -1, 1, 80.0),
    Sketcher.Constraint("DistanceY", 2, 2, -1, 1, 40.0),
])
sketch10.setExpression("Constraints[5]", "Params.sketch10_radius")
sketch10.setExpression("Constraints[6]", "Params.sketch10_height")
pocket7 = body.newObject("PartDesign::Pocket", "Pocket006")
pocket7.Profile = sketch10
pocket7.setExpression("Length", "Params.pocket7_length")
pocket7.Reversed = True

doc.recompute()
